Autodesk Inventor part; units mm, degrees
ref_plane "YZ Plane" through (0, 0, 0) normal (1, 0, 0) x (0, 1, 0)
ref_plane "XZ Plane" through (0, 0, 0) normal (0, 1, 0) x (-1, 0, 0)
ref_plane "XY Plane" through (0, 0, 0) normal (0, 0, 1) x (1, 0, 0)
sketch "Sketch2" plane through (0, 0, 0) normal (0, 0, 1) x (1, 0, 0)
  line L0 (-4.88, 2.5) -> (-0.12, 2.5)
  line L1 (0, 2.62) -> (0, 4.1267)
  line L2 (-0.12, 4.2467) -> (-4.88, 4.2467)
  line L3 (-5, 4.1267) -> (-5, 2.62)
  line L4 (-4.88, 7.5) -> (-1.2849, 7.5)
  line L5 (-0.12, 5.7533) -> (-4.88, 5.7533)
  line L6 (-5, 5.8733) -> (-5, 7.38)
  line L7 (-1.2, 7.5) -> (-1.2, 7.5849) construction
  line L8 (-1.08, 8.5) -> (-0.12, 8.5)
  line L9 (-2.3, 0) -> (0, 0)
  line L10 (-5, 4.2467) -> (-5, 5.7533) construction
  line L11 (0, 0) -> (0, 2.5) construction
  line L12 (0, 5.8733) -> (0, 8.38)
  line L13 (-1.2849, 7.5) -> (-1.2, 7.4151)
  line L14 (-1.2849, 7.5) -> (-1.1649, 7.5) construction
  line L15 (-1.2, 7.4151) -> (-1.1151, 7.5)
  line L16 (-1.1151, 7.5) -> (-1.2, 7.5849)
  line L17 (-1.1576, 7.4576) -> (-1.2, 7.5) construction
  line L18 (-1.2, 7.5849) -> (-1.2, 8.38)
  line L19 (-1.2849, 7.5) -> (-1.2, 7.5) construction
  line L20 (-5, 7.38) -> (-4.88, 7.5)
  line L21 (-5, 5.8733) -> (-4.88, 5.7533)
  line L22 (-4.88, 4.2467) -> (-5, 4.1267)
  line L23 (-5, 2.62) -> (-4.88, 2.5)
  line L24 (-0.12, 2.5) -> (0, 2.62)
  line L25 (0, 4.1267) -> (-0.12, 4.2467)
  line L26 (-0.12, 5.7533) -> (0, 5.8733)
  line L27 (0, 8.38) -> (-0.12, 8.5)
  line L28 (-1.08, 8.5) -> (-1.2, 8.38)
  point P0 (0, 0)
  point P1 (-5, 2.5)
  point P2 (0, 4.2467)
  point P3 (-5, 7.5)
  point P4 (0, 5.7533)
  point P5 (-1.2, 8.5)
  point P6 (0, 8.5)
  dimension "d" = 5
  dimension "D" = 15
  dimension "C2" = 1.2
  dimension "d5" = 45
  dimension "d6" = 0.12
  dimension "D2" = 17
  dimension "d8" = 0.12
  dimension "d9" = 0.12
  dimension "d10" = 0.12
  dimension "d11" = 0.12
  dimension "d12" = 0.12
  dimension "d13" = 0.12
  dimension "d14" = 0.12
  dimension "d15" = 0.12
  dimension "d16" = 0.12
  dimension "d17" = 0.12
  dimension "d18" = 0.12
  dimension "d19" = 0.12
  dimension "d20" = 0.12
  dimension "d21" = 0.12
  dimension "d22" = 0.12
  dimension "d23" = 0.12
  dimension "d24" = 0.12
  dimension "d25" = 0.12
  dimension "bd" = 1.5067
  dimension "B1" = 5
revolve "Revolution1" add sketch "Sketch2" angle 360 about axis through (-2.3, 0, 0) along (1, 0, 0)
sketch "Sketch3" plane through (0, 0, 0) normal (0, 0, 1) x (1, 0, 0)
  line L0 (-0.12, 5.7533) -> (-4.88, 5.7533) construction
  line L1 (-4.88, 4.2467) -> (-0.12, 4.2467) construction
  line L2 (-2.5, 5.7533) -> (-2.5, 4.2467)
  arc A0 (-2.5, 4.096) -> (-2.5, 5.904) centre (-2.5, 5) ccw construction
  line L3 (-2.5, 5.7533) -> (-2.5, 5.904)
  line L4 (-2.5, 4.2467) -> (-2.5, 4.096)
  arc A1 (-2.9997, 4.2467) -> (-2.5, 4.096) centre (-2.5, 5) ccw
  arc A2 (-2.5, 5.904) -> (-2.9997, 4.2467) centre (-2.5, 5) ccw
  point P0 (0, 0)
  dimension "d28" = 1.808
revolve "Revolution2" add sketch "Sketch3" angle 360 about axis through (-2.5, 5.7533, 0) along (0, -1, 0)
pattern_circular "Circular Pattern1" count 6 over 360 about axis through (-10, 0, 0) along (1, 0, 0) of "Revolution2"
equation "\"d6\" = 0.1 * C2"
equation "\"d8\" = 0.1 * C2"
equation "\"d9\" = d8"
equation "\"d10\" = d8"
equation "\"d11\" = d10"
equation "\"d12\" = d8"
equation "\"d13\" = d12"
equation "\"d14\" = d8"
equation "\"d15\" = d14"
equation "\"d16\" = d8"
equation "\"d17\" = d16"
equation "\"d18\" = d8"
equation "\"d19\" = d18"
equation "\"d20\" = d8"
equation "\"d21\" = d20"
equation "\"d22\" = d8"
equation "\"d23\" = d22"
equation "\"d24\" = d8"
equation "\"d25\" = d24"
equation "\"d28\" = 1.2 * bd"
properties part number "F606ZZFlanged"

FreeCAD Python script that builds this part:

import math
import FreeCAD as App
import Part
import Sketcher

V = App.Vector


def add_polygon(sketch, points):
    """Adds a closed chain of lines whose ends are joined by coincident constraints."""
    first, n = sketch.GeometryCount, len(points)
    for a, b in zip(points, points[1:] + points[:1]):
        sketch.addGeometry(Part.LineSegment(App.Vector(*a, 0), App.Vector(*b, 0)), False)
    for i in range(n):
        sketch.addConstraint(Sketcher.Constraint("Coincident", first + i, 2, first + (i + 1) % n, 1))

doc = App.newDocument("Part")
params = doc.addObject("Spreadsheet::Sheet", "Params")
for row, (alias, value) in enumerate([
    ("sketch1_length", "0.12 mm"),
    ("revolution_angle", "360 deg"),
    ("revolution2_angle", "360 deg"),
], start=1):
    params.set(f"A{row}", alias)
    params.set(f"B{row}", "=" + value)
    params.setAlias(f"B{row}", alias)

body = doc.addObject("PartDesign::Body", "Body")
body.AllowCompound = True

# Sketch on XY plane
sketch1 = doc.addObject("Sketcher::SketchObject", "Sketch")
body.addObject(sketch1)
sketch1.AttachmentSupport = (doc.XY_Plane, [""])
sketch1.MapMode = "FlatFace"
add_polygon(sketch1, [(-5, 2.62), (-4.88, 2.5), (-0.12, 2.5), (0, 2.62), (0, 4.13), (-0.12, 4.25), (-4.88, 4.25), (-5, 4.13)])  # lines 0-7
add_polygon(sketch1, [(-1.28, 7.5), (-4.88, 7.5), (-5, 7.38), (-5, 5.87), (-4.88, 5.75), (-0.12, 5.75), (0, 5.87), (0, 8.38), (-0.12, 8.5), (-1.08, 8.5), (-1.2, 8.38), (-1.2, 7.58), (-1.12, 7.5), (-1.2, 7.42)])  # lines 8-21
sketch1.addConstraint([
    Sketcher.Constraint("Horizontal", 1),
    Sketcher.Constraint("Vertical", 3),
    Sketcher.Constraint("Horizontal", 5),
    Sketcher.Constraint("Vertical", 7),
    Sketcher.Constraint("Horizontal", 8),
    Sketcher.Constraint("Vertical", 10),
    Sketcher.Constraint("Horizontal", 12),
    Sketcher.Constraint("Vertical", 14),
    Sketcher.Constraint("Horizontal", 16),
    Sketcher.Constraint("Vertical", 18),
    Sketcher.Constraint("PointOnObject", 2, 2, -2),
    Sketcher.Constraint("PointOnObject", 13, 2, -2),
    Sketcher.Constraint("Perpendicular", 0, 2),
    Sketcher.Constraint("Perpendicular", 2, 4),
    Sketcher.Constraint("Perpendicular", 4, 6),
    Sketcher.Constraint("Parallel", 6, 9),
    Sketcher.Constraint("Perpendicular", 9, 11),
    Sketcher.Constraint("Perpendicular", 11, 13),
    Sketcher.Constraint("Perpendicular", 13, 15),
    Sketcher.Constraint("Perpendicular", 15, 17),
    Sketcher.Constraint("Perpendicular", 17, 19),
    Sketcher.Constraint("Perpendicular", 19, 20),
    Sketcher.Constraint("Perpendicular", 20, 21),
    Sketcher.Constraint("Horizontal", 3, 2, 6, 2),
    Sketcher.Constraint("Horizontal", 2, 2, 7, 2),
    Sketcher.Constraint("Horizontal", 10, 2, 13, 2),
    Sketcher.Constraint("Horizontal", 14, 2, 17, 2),
    Sketcher.Constraint("Horizontal", 8, 2, 19, 2),
    Sketcher.Constraint("Vertical", 1, 2, 4, 2),
    Sketcher.Constraint("Vertical", 0, 2, 5, 2),
    Sketcher.Constraint("Vertical", 5, 2, 8, 2),
    Sketcher.Constraint("Vertical", 7, 2, 9, 2),
    Sketcher.Constraint("Vertical", 8, 2, 11, 2),
    Sketcher.Constraint("Vertical", 12, 2, 15, 2),
    Sketcher.Constraint("Vertical", 18, 2, 20, 2),
    Sketcher.Constraint("Equal", 7, 10),
    Sketcher.Constraint("DistanceX", 6, 2, -1, 1, 5.0),
    Sketcher.Constraint("DistanceY", 0, 2, 8, 2, 5.0),
    Sketcher.Constraint("DistanceX", 17, 2, -1, 1, 1.2),
    Sketcher.Constraint("Distance", 19, 0.12),
    Sketcher.Constraint("DistanceX", 1, 2, -1, 1, 0.12),
    Sketcher.Constraint("DistanceY", 3, 1, 3, 2, 1.5067),
    Sketcher.Constraint("DistanceY", 8, 2, 16, 2, 1.0),
    Sketcher.Constraint("DistanceY", -1, 1, 0, 2, 2.5),
])
sketch1.setExpression("Constraints[61]", "Params.sketch1_length")
revolution = doc.addObject("PartDesign::Revolution", "Revolution")
body.addObject(revolution)
revolution.Profile = sketch1
revolution.ReferenceAxis = (sketch1, ["H_Axis"])
revolution.setExpression("Angle", "Params.revolution_angle")

# Sketch on XY plane
sketch2 = doc.addObject("Sketcher::SketchObject", "Sketch001")
body.addObject(sketch2)
sketch2.AttachmentSupport = (doc.XY_Plane, [""])
sketch2.MapMode = "FlatFace"
sketch2.addGeometry([
    Part.LineSegment(V(-2.5, 4.1, 0), V(-2.5, 5.9, 0)),
    Part.ArcOfCircle(Part.Circle(V(-2.5, 5, 0), V(0, 0, 1), 0.9), math.radians(90), math.radians(236)),
    Part.ArcOfCircle(Part.Circle(V(-2.5, 5, 0), V(0, 0, 1), 0.9), math.radians(-124), math.radians(-90)),
], False)
sketch2.addGeometry(Part.LineSegment(V(-2.5, 5.9, 0), V(-2.5, 4.1, 0)), True)  # axis
sketch2.addConstraint([
    Sketcher.Constraint("Coincident", 0, 2, 1, 1),
    Sketcher.Constraint("Tangent", 1, 2, 2, 1),
    Sketcher.Constraint("Coincident", 2, 2, 0, 1),
    Sketcher.Constraint("Vertical", 0),
    Sketcher.Constraint("Vertical", 3),
    Sketcher.Constraint("Coincident", 3, 1, 0, 2),
    Sketcher.Constraint("Equal", 1, 2),
    Sketcher.Constraint("Vertical", 2, 3, 0, 2),
    Sketcher.Constraint("Equal", 0, 3),
    Sketcher.Constraint("Radius", 1, 0.904),
    Sketcher.Constraint("DistanceY", -1, 1, 1, 3, 5.0),
    Sketcher.Constraint("DistanceX", 1, 3, -1, 1, 2.5),
    Sketcher.Constraint("DistanceX", 1, 2, -1, 1, 2.9997),
])
revolution2 = doc.addObject("PartDesign::Revolution", "Revolution001")
body.addObject(revolution2)
revolution2.Profile = sketch2
revolution2.ReferenceAxis = (sketch2, ["Axis0"])
revolution2.setExpression("Angle", "Params.revolution2_angle")
doc.recompute()

polarpattern = doc.addObject("PartDesign::PolarPattern", "PolarPattern")
body.addObject(polarpattern)
polarpattern.Originals = [revolution2]
polarpattern.Axis = (doc.X_Axis, [""])
polarpattern.Angle = 360
polarpattern.Occurrences = 6
body.Tip = polarpattern

doc.recompute()
